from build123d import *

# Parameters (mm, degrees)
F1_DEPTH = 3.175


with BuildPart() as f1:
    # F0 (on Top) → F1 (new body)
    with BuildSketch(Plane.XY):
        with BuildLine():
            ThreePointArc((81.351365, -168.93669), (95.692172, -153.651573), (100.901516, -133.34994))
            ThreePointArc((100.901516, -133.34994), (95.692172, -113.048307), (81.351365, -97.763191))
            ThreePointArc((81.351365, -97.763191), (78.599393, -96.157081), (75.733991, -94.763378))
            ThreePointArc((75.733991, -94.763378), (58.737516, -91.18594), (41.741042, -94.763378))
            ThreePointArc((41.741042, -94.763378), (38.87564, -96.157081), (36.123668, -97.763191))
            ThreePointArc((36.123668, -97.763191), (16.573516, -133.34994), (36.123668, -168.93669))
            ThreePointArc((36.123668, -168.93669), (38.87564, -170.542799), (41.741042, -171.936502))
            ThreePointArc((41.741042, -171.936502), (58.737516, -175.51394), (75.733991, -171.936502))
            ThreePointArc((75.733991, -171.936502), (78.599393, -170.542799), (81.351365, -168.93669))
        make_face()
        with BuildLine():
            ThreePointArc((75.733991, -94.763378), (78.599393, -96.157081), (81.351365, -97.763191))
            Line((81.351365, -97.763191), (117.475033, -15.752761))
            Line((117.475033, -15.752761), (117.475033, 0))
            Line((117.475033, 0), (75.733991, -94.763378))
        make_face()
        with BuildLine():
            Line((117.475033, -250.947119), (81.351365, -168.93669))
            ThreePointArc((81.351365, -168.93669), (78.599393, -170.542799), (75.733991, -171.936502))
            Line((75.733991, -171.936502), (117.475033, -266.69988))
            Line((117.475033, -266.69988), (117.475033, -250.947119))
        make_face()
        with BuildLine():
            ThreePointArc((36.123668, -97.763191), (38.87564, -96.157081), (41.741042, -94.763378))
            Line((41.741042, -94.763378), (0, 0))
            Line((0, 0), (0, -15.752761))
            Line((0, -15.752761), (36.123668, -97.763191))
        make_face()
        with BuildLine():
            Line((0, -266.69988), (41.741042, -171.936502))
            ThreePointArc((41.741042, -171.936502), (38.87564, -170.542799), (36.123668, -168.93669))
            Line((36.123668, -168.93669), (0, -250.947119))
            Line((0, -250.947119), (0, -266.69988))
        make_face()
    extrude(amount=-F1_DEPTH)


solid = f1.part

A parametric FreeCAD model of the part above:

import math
import FreeCAD as App
import Part
import Sketcher
from FreeCAD import Vector
Q = App.Units.Quantity

doc = App.newDocument("Part")
body = doc.addObject("PartDesign::Body", "Body")

sketch1 = doc.addObject("Sketcher::SketchObject", "Sketch")
body.addObject(sketch1)
sketch1.AttachmentSupport = (doc.XY_Plane, [""])
sketch1.MapMode = "FlatFace"
sketch1.addGeometry([
    Part.ArcOfCircle(Part.Circle(Vector(59, -133, 0), Vector(0, 0, 1), 42), math.radians(-58), math.radians(0)),
    Part.ArcOfCircle(Part.Circle(Vector(59, -133, 0), Vector(0, 0, 1), 42), math.radians(0), math.radians(58)),
    Part.LineSegment(Vector(81, -98, 0), Vector(117, -16, 0)),
    Part.LineSegment(Vector(117, -16, 0), Vector(117, 0, 0)),
    Part.LineSegment(Vector(117, 0, 0), Vector(76, -95, 0)),
    Part.ArcOfCircle(Part.Circle(Vector(59, -133, 0), Vector(0, 0, 1), 42), math.radians(66), math.radians(114)),
    Part.LineSegment(Vector(42, -95, 0), Vector(0, 0, 0)),
    Part.LineSegment(Vector(0, 0, 0), Vector(0, -16, 0)),
    Part.LineSegment(Vector(0, -16, 0), Vector(36, -98, 0)),
    Part.ArcOfCircle(Part.Circle(Vector(59, -133, 0), Vector(0, 0, 1), 42), math.radians(122), math.radians(238)),
    Part.LineSegment(Vector(36, -169, 0), Vector(0, -251, 0)),
    Part.LineSegment(Vector(0, -251, 0), Vector(0, -267, 0)),
    Part.LineSegment(Vector(0, -267, 0), Vector(42, -172, 0)),
    Part.ArcOfCircle(Part.Circle(Vector(59, -133, 0), Vector(0, 0, 1), 42), math.radians(-114), math.radians(-66)),
    Part.LineSegment(Vector(76, -172, 0), Vector(117, -267, 0)),
    Part.LineSegment(Vector(117, -267, 0), Vector(117, -251, 0)),
    Part.LineSegment(Vector(117, -251, 0), Vector(81, -169, 0)),
], False)
sketch1.addConstraint([
    Sketcher.Constraint("Tangent", 0, 2, 1, 1),
    Sketcher.Constraint("Coincident", 1, 2, 2, 1),
    Sketcher.Constraint("Coincident", 2, 2, 3, 1),
    Sketcher.Constraint("Coincident", 3, 2, 4, 1),
    Sketcher.Constraint("Coincident", 4, 2, 5, 1),
    Sketcher.Constraint("Coincident", 5, 2, 6, 1),
    Sketcher.Constraint("Coincident", 6, 2, 7, 1),
    Sketcher.Constraint("Coincident", 7, 2, 8, 1),
    Sketcher.Constraint("Coincident", 8, 2, 9, 1),
    Sketcher.Constraint("Coincident", 9, 2, 10, 1),
    Sketcher.Constraint("Coincident", 10, 2, 11, 1),
    Sketcher.Constraint("Coincident", 11, 2, 12, 1),
    Sketcher.Constraint("Coincident", 12, 2, 13, 1),
    Sketcher.Constraint("Coincident", 13, 2, 14, 1),
    Sketcher.Constraint("Coincident", 14, 2, 15, 1),
    Sketcher.Constraint("Coincident", 15, 2, 16, 1),
    Sketcher.Constraint("Coincident", 16, 2, 0, 1),
    Sketcher.Constraint("Vertical", 3),
    Sketcher.Constraint("Vertical", 7),
    Sketcher.Constraint("Vertical", 11),
    Sketcher.Constraint("Vertical", 15),
    Sketcher.Constraint("Coincident", 6, 2, -1, 1),
    Sketcher.Constraint("Coincident", 5, 3, 0, 3),
    Sketcher.Constraint("Coincident", 9, 3, 0, 3),
    Sketcher.Constraint("Coincident", 13, 3, 0, 3),
    Sketcher.Constraint("Equal", 0, 5),
    Sketcher.Constraint("Equal", 1, 9),
    Sketcher.Constraint("Equal", 5, 13),
    Sketcher.Constraint("PointOnObject", 3, 2, -1),
    Sketcher.Constraint("PointOnObject", 10, 2, -2),
    Sketcher.Constraint("Parallel", 2, 4),
    Sketcher.Constraint("Parallel", 6, 8),
    Sketcher.Constraint("Parallel", 4, 10),
    Sketcher.Constraint("Parallel", 10, 12),
    Sketcher.Constraint("Parallel", 8, 14),
    Sketcher.Constraint("Parallel", 14, 16),
    Sketcher.Constraint("Horizontal", 9, 3, 0, 2),
    Sketcher.Constraint("Horizontal", 4, 2, 5, 2),
    Sketcher.Constraint("Horizontal", 2, 2, 7, 2),
    Sketcher.Constraint("Horizontal", 1, 2, 8, 2),
    Sketcher.Constraint("Horizontal", 12, 2, 13, 2),
    Sketcher.Constraint("Horizontal", 11, 2, 14, 2),
    Sketcher.Constraint("Horizontal", 10, 2, 15, 2),
    Sketcher.Constraint("Horizontal", 9, 2, 16, 2),
    Sketcher.Constraint("Vertical", 8, 2, 9, 2),
    Sketcher.Constraint("Vertical", 5, 2, 12, 2),
    Sketcher.Constraint("Radius", 0, Q("1.6600001 in")),
    Sketcher.Constraint("DistanceY", 3, 1, 3, 2, 15.752761),
    Sketcher.Constraint("DistanceY", 12, 2, -1, 1, 171.936502),
    Sketcher.Constraint("Distance", 10, 89.613782),
    Sketcher.Constraint("DistanceY", 0, 3, -1, 1, 133.34994),
])
pad1 = doc.addObject("PartDesign::Pad", "Pad")
body.addObject(pad1)
pad1.Profile = sketch1
pad1.Length = Q("0.125 in")
pad1.Reversed = True

doc.recompute()
